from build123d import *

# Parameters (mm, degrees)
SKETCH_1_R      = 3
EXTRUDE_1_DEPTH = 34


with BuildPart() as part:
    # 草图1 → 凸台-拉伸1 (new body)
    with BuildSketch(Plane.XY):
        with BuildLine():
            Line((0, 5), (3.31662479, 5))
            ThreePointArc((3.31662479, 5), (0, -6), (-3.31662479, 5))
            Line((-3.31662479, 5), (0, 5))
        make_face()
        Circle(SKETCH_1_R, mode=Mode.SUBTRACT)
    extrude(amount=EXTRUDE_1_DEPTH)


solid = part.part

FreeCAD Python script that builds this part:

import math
import FreeCAD as App
import Part
import Sketcher

V = App.Vector
Q = App.Units.Quantity

doc = App.newDocument("Part")
body = doc.addObject("PartDesign::Body", "Body")

# Sketch on XY plane
sketch1 = doc.addObject("Sketcher::SketchObject", "Sketch")
body.addObject(sketch1)
sketch1.AttachmentSupport = (doc.XY_Plane, [""])
sketch1.MapMode = "FlatFace"
sketch1.addGeometry(Part.ArcOfCircle(Part.Circle(V(0, 0, 0), V(0, 0, 1), 6), math.radians(123.55731), math.radians(416.44269)), False)
sketch1.addGeometry(Part.LineSegment(V(3.316625, 5, 0), V(-3.316625, 5, 0)), False)
sketch1.addGeometry(Part.Circle(V(0, 0, 0), V(0, 0, 1), 3), False)
sketch1.addConstraint(Sketcher.Constraint("Coincident", 0, 1, 1, 2))
sketch1.addConstraint(Sketcher.Constraint("Coincident", 1, 1, 0, 2))
sketch1.addConstraint(Sketcher.Constraint("Horizontal", 1))
sketch1.addConstraint(Sketcher.Constraint("Coincident", 0, 3, -1, 1))
sketch1.addConstraint(Sketcher.Constraint("Coincident", 2, 3, -1, 1))
sketch1.addConstraint(Sketcher.Constraint("Diameter", 2, Q("6 mm")))
sketch1.addConstraint(Sketcher.Constraint("Radius", 0, Q("6 mm")))
sketch1.addConstraint(Sketcher.Constraint("DistanceY", -1, 1, 0, 1, Q("5 mm")))
pad1 = doc.addObject("PartDesign::Pad", "Pad")
body.addObject(pad1)
pad1.Profile = sketch1
pad1.Length = 34

doc.recompute()
